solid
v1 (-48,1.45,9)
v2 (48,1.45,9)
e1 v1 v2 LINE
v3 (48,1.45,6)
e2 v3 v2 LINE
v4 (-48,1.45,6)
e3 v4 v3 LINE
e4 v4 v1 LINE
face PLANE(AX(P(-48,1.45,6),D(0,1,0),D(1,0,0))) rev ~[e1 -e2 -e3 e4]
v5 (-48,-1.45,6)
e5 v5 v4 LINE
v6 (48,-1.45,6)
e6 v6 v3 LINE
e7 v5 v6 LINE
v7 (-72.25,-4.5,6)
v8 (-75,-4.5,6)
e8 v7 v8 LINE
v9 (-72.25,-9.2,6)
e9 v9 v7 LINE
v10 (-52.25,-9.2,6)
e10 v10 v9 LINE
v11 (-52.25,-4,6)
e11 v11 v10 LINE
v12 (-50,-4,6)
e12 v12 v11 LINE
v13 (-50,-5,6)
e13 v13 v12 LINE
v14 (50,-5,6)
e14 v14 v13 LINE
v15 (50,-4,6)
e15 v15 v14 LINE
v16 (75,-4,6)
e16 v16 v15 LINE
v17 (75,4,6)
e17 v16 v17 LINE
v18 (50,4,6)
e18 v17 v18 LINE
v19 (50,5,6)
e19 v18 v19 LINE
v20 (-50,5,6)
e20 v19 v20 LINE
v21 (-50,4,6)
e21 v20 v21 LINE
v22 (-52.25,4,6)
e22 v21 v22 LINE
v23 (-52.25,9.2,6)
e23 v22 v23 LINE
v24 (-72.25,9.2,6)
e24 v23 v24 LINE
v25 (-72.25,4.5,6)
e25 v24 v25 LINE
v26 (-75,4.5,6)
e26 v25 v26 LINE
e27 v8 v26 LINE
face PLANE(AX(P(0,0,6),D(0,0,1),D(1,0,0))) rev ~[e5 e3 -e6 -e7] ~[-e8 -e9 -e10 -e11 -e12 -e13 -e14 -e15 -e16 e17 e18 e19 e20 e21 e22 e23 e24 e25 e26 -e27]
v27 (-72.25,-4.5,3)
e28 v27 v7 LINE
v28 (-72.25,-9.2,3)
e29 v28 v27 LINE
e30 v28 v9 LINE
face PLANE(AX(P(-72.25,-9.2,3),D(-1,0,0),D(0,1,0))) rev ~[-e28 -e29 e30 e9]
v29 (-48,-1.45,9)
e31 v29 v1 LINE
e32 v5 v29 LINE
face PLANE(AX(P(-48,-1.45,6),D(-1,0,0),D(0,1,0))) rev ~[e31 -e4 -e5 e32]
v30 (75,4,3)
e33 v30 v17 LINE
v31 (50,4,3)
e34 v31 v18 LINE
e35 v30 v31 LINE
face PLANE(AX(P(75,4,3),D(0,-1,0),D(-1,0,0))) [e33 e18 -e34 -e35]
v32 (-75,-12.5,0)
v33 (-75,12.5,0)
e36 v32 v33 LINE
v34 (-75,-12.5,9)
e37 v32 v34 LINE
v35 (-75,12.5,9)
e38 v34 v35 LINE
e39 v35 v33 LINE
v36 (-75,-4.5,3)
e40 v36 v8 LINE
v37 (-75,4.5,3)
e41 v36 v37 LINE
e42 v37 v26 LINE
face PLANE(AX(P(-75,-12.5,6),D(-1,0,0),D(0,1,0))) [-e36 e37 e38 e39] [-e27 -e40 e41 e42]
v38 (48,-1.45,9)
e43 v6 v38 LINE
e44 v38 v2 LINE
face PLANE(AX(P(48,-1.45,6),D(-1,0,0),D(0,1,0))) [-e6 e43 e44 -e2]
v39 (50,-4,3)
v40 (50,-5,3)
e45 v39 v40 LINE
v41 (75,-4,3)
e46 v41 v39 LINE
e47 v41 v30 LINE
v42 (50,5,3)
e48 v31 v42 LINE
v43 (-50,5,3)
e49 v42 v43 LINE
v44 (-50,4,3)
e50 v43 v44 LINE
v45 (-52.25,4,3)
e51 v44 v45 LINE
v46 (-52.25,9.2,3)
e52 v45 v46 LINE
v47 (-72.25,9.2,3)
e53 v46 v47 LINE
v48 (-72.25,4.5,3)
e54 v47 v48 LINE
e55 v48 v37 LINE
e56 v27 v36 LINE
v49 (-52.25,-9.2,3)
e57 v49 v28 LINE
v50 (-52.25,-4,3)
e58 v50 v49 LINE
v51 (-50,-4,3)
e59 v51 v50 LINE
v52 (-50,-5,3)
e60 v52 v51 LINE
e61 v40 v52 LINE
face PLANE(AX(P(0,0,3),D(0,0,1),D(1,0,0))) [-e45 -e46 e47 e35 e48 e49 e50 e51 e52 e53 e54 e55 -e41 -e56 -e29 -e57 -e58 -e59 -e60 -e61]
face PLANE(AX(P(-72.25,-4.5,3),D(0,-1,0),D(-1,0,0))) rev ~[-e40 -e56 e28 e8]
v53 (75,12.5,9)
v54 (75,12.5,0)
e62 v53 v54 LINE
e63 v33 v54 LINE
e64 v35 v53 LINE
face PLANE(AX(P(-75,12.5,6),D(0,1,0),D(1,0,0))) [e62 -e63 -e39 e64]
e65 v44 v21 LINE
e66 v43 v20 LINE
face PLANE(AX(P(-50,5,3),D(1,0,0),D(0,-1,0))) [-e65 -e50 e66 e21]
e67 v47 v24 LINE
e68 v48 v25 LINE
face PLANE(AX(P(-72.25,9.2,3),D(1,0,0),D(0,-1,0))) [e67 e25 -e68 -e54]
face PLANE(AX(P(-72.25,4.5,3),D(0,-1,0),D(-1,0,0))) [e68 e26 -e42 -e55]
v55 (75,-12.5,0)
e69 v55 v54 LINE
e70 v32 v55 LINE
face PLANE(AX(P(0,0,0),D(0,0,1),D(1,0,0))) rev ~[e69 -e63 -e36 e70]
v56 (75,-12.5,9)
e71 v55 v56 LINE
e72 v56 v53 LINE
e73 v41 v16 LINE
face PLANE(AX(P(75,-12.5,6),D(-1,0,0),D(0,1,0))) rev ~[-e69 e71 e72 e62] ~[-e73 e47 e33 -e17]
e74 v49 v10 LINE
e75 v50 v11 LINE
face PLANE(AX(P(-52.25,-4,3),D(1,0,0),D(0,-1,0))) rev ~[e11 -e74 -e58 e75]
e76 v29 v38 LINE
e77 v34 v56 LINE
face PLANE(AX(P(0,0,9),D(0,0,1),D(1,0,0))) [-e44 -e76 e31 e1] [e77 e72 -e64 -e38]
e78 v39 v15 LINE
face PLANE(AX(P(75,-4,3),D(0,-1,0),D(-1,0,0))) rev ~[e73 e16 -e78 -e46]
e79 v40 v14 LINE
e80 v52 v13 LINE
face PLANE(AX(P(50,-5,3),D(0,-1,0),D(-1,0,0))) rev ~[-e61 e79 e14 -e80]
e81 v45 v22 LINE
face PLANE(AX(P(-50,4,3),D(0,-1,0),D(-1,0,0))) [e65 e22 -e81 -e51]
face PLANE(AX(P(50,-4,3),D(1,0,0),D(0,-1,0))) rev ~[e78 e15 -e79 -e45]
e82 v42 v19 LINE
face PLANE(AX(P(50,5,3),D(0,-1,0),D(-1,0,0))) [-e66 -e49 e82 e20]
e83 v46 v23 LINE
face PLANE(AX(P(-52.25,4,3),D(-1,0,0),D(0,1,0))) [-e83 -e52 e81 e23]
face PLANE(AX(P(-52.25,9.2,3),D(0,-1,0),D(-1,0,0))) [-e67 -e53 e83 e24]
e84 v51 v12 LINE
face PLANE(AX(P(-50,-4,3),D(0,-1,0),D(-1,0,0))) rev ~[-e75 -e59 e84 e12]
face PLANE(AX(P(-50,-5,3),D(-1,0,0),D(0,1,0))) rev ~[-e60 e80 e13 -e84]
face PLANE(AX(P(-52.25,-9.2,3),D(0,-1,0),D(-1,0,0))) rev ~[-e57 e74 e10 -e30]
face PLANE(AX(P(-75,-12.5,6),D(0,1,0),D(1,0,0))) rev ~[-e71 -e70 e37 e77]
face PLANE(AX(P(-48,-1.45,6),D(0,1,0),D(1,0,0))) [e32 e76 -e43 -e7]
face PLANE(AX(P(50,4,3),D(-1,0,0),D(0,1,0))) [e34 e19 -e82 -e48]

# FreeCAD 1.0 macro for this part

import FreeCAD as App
import Part
import Sketcher

V = App.Vector


def add_polygon(sketch, points):
    """Adds a closed chain of lines whose ends are joined by coincident constraints."""
    first, n = sketch.GeometryCount, len(points)
    for a, b in zip(points, points[1:] + points[:1]):
        sketch.addGeometry(Part.LineSegment(App.Vector(*a, 0), App.Vector(*b, 0)), False)
    for i in range(n):
        sketch.addConstraint(Sketcher.Constraint("Coincident", first + i, 2, first + (i + 1) % n, 1))

doc = App.newDocument("Part")
body = doc.addObject("PartDesign::Body", "Body")

sketch1 = body.newObject("Sketcher::SketchObject", "Sketch")
sketch1.AttachmentSupport = (doc.getObject("XY_Plane"), [""])
sketch1.MapMode = "FlatFace"
add_polygon(sketch1, [(-75, 12), (-75, -12), (75, -12), (75, 12)])
sketch1.addConstraint([
    Sketcher.Constraint("Vertical", 0),
    Sketcher.Constraint("Horizontal", 1),
    Sketcher.Constraint("Vertical", 2),
    Sketcher.Constraint("Horizontal", 3),
    Sketcher.Constraint("Symmetric", 0, 2, 2, 2, -1, 1),
    Sketcher.Constraint("DistanceX", 1, 1, 1, 2, 150.0),
    Sketcher.Constraint("DistanceY", 0, 2, 0, 1, 25.0),
])
pad1 = body.newObject("PartDesign::Pad", "Pad")
pad1.Profile = sketch1
pad1.Length = 3

sketch2 = body.newObject("Sketcher::SketchObject", "Sketch001")
sketch2.AttachmentSupport = (doc.getObject("XY_Plane"), [""])
sketch2.MapMode = "FlatFace"
sketch2.AttachmentOffset = App.Placement(V(0, 0, 3), App.Rotation())
add_polygon(sketch2, [(75, 12.5), (-75, 12.5), (-75, 4.5), (-72.2, 4.5), (-72.2, 9.2), (-52.2, 9.2), (-52.2, 4), (-50, 4), (-50, 5), (50, 5), (50, 4), (75, 4)])
add_polygon(sketch2, [(-75, -12.5), (75, -12.5), (75, -4), (50, -4), (50, -5), (-50, -5), (-50, -4), (-52.2, -4), (-52.2, -9.2), (-72.2, -9.2), (-72.2, -4.5), (-75, -4.5)])
sketch2.addConstraint([
    Sketcher.Constraint("Horizontal", 0),
    Sketcher.Constraint("Vertical", 1),
    Sketcher.Constraint("Horizontal", 2),
    Sketcher.Constraint("Vertical", 3),
    Sketcher.Constraint("Horizontal", 4),
    Sketcher.Constraint("Vertical", 5),
    Sketcher.Constraint("Horizontal", 6),
    Sketcher.Constraint("Vertical", 7),
    Sketcher.Constraint("Horizontal", 8),
    Sketcher.Constraint("Vertical", 9),
    Sketcher.Constraint("Horizontal", 10),
    Sketcher.Constraint("Vertical", 11),
    Sketcher.Constraint("Horizontal", 12),
    Sketcher.Constraint("Vertical", 13),
    Sketcher.Constraint("Horizontal", 14),
    Sketcher.Constraint("Vertical", 15),
    Sketcher.Constraint("Horizontal", 16),
    Sketcher.Constraint("Vertical", 17),
    Sketcher.Constraint("Horizontal", 18),
    Sketcher.Constraint("Vertical", 19),
    Sketcher.Constraint("Horizontal", 20),
    Sketcher.Constraint("Vertical", 21),
    Sketcher.Constraint("Horizontal", 22),
    Sketcher.Constraint("Vertical", 23),
    Sketcher.Constraint("Symmetric", 0, 2, 12, 2, -1, 1),
    Sketcher.Constraint("Symmetric", 6, 2, 14, 2, -1, 1),
    Sketcher.Constraint("Symmetric", 8, 2, 16, 2, -1, 1),
    Sketcher.Constraint("Symmetric", 6, 2, 9, 2, -2),
    Sketcher.Constraint("Symmetric", 5, 2, 18, 2, -1),
    Sketcher.Constraint("Symmetric", 3, 2, 20, 2, -1),
    Sketcher.Constraint("Symmetric", 1, 2, 22, 2, -1),
    Sketcher.Constraint("Vertical", 11, 2, 12, 2),
    Sketcher.Constraint("DistanceX", 0, 2, 0, 1, 150.0),
    Sketcher.Constraint("DistanceX", 4, 1, 4, 2, 20.0),
    Sketcher.Constraint("DistanceX", 8, 1, 8, 2, 100.0),
    Sketcher.Constraint("DistanceY", 1, 2, 1, 1, 8.0),
    Sketcher.Constraint("DistanceY", 7, 1, 7, 2, 1.0),
    Sketcher.Constraint("DistanceY", 3, 1, 3, 2, 4.7),
    Sketcher.Constraint("DistanceY", 5, 2, 5, 1, 5.2),
    Sketcher.Constraint("DistanceY", -1, 1, 5, 2, 4.0),
    Sketcher.Constraint("DistanceX", 2, 1, 2, 2, 2.75),
])
pad2 = body.newObject("PartDesign::Pad", "Pad001")
pad2.Profile = sketch2
pad2.Length = 3

sketch3 = body.newObject("Sketcher::SketchObject", "Sketch002")
sketch3.AttachmentSupport = (doc.getObject("XY_Plane"), [""])
sketch3.MapMode = "FlatFace"
sketch3.AttachmentOffset = App.Placement(V(0, 0, 6), App.Rotation())
add_polygon(sketch3, [(-75, 12.5), (-75, -12.5), (75, -12.5), (75, 12.5)])
add_polygon(sketch3, [(48, -1.4), (-48, -1.4), (-48, 1.4), (48, 1.4)])
sketch3.addConstraint([
    Sketcher.Constraint("Vertical", 0),
    Sketcher.Constraint("Horizontal", 1),
    Sketcher.Constraint("Vertical", 2),
    Sketcher.Constraint("Horizontal", 3),
    Sketcher.Constraint("Horizontal", 4),
    Sketcher.Constraint("Vertical", 5),
    Sketcher.Constraint("Horizontal", 6),
    Sketcher.Constraint("Vertical", 7),
    Sketcher.Constraint("Symmetric", 0, 2, 2, 2, -1, 1),
    Sketcher.Constraint("Symmetric", 4, 2, 6, 2, -1, 1),
    Sketcher.Constraint("DistanceX", 1, 1, 1, 2, 150.0),
    Sketcher.Constraint("DistanceX", 4, 2, 4, 1, 96.0),
    Sketcher.Constraint("DistanceY", 0, 2, 0, 1, 25.0),
    Sketcher.Constraint("DistanceY", 5, 1, 5, 2, 2.9),
])
pad3 = body.newObject("PartDesign::Pad", "Pad002")
pad3.Profile = sketch3
pad3.Length = 3

doc.recompute()
